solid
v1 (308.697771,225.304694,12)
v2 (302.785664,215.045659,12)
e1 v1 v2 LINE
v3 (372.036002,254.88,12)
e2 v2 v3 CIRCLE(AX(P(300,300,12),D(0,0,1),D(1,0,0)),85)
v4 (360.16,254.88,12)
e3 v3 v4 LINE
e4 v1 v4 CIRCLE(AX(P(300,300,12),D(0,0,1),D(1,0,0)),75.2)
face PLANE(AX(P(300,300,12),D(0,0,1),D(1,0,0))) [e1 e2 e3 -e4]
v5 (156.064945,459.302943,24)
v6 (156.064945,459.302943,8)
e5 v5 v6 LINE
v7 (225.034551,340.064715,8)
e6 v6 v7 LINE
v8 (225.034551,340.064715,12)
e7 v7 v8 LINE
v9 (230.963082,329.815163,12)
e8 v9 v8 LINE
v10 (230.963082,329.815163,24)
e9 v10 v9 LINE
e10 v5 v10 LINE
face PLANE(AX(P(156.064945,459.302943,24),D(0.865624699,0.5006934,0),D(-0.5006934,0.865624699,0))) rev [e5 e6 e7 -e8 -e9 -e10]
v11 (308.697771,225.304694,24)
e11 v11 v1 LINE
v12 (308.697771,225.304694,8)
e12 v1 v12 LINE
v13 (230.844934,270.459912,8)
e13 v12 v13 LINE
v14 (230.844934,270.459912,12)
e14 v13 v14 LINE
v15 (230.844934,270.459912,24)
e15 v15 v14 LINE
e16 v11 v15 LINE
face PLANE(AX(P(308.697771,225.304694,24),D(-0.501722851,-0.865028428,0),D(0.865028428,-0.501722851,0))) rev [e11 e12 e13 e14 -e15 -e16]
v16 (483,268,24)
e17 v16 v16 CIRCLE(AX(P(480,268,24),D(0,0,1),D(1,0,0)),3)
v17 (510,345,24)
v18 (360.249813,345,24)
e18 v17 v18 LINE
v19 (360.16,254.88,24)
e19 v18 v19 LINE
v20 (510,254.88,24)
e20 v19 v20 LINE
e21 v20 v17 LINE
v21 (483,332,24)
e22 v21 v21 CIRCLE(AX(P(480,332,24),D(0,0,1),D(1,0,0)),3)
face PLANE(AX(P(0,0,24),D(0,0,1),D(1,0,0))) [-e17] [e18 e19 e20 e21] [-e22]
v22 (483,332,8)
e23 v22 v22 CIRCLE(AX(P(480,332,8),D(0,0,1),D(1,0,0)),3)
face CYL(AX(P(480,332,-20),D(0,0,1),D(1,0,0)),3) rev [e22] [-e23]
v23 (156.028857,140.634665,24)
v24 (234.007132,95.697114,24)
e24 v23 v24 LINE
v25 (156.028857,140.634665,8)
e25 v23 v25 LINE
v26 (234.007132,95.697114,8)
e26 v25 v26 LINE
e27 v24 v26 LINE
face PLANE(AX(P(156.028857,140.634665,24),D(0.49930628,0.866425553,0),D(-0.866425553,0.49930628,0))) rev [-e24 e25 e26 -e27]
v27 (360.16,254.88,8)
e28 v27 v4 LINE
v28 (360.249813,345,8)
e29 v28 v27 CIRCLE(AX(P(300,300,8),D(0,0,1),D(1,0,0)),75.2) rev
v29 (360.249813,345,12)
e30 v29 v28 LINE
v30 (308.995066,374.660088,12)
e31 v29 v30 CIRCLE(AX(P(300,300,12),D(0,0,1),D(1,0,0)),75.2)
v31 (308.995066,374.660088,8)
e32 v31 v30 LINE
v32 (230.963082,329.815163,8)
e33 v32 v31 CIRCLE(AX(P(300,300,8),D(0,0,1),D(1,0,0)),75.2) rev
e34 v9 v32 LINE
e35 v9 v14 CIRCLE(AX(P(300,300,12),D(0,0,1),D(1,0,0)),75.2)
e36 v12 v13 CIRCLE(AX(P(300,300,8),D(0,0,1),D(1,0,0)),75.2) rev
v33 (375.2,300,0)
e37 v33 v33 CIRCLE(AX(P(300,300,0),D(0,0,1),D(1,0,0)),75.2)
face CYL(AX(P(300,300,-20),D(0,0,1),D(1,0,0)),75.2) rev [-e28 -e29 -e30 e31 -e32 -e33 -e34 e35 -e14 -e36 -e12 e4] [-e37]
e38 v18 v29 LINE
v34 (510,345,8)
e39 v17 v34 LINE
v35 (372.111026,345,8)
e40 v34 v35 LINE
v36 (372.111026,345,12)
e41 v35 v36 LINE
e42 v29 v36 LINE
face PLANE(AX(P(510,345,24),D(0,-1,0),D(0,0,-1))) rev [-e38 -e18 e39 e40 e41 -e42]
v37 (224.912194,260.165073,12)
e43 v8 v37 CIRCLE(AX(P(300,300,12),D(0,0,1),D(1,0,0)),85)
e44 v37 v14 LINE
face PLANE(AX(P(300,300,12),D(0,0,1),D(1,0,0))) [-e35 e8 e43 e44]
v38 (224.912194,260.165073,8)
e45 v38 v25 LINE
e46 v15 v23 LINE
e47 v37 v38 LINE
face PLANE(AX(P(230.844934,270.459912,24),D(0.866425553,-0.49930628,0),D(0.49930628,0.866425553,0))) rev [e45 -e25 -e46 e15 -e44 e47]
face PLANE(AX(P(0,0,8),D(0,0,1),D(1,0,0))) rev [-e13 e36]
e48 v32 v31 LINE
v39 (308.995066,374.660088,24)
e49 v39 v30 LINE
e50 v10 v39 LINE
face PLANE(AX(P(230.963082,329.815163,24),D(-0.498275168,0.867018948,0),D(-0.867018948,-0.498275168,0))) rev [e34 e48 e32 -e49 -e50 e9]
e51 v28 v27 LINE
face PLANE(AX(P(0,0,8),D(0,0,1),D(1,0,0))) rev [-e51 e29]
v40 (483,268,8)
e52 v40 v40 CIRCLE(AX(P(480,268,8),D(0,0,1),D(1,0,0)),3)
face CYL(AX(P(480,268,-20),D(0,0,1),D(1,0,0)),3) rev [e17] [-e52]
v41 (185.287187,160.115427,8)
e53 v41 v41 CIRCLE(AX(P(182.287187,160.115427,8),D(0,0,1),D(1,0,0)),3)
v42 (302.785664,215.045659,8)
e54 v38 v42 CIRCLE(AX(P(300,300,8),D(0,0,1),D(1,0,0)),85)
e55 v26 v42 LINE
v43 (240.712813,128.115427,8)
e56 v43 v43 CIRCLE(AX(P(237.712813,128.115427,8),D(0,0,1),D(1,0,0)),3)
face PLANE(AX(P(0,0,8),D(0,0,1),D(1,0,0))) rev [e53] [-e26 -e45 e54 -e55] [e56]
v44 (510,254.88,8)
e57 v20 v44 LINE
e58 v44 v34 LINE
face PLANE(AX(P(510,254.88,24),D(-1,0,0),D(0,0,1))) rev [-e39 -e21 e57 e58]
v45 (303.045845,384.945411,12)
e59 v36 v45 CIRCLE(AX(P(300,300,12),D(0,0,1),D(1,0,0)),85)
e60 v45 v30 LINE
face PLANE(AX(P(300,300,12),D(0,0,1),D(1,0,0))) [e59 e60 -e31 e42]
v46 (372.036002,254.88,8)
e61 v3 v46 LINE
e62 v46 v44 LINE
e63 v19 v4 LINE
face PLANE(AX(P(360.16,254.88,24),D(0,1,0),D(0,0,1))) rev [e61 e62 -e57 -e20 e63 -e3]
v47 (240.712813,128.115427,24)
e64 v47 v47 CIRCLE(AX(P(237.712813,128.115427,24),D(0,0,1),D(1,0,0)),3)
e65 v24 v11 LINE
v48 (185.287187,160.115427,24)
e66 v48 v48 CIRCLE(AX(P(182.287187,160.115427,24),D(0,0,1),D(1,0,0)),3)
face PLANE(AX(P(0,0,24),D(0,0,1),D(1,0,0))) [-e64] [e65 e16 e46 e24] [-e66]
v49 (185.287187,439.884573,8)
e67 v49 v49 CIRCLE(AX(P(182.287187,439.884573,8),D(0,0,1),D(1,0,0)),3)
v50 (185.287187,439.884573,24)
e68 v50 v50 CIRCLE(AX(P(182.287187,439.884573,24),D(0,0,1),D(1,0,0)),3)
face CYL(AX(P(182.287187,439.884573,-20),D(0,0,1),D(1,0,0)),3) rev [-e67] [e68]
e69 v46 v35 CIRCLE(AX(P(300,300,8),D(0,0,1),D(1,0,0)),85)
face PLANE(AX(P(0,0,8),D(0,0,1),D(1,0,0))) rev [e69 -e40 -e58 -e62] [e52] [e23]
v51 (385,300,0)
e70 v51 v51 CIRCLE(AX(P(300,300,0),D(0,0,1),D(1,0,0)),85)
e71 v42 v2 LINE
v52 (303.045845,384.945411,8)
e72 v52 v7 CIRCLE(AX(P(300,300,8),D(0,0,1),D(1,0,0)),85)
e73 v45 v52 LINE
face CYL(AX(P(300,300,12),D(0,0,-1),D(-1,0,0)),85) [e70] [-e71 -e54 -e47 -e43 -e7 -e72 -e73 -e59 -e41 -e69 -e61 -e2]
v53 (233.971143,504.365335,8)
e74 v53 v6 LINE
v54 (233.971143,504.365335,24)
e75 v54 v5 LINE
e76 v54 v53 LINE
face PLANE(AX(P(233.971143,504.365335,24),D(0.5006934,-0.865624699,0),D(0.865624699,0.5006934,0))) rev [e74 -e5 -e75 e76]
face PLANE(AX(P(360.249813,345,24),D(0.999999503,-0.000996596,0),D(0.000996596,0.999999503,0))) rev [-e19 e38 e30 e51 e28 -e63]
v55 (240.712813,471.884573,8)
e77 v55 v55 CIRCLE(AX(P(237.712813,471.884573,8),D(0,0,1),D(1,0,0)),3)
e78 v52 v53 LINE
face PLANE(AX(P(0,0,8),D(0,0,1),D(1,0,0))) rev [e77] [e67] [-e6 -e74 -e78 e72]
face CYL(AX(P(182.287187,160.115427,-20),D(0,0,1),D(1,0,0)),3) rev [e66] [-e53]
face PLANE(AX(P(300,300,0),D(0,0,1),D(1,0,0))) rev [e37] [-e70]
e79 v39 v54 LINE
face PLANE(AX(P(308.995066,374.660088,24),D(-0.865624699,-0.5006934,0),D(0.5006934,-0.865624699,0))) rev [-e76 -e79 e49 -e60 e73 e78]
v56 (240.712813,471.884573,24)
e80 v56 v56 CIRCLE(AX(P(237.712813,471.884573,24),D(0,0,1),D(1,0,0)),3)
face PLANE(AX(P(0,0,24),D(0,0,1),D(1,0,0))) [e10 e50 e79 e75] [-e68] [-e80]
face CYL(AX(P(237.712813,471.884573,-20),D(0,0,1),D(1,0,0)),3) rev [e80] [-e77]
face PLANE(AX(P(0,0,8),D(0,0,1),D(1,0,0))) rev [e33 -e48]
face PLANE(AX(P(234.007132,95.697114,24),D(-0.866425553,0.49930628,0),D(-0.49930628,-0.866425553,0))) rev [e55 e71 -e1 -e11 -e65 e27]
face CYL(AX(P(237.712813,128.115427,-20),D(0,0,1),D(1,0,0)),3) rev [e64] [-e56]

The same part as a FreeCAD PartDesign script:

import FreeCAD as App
import Part
import Sketcher

doc = App.newDocument("Part")
body = doc.addObject("PartDesign::Body", "Body")

sketch1 = body.newObject("Sketcher::SketchObject", "Sketch")
sketch1.AttachmentSupport = (doc.getObject("XY_Plane"), [""])
sketch1.MapMode = "FlatFace"
sketch1.addGeometry(Part.Circle(App.Vector(300, 300, 0), App.Vector(0, 0, 1), 85), False)
sketch1.addConstraint(Sketcher.Constraint("Diameter", 0, 170.0))
sketch1.addConstraint(Sketcher.Constraint("DistanceX", -1, 1, 0, 3, 300.0))
sketch1.addConstraint(Sketcher.Constraint("DistanceY", -1, 1, 0, 3, 300.0))
pad1 = body.newObject("PartDesign::Pad", "Pad")
pad1.Profile = sketch1
pad1.Length = 12

sketch2 = body.newObject("Sketcher::SketchObject", "Sketch001")
sketch2.AttachmentSupport = (doc.getObject("XY_Plane"), [""])
sketch2.MapMode = "FlatFace"
sketch2.AttachmentOffset = App.Placement(App.Vector(0, 0, 12), App.Rotation())
sketch2.addGeometry(Part.Circle(App.Vector(300, 300, 0), App.Vector(0, 0, 1), 75.2), False)
sketch2.addConstraint(Sketcher.Constraint("Diameter", 0, 150.4))
sketch2.addConstraint(Sketcher.Constraint("DistanceX", -1, 1, 0, 3, 300.0))
sketch2.addConstraint(Sketcher.Constraint("DistanceY", -1, 1, 0, 3, 300.0))
pocket1 = body.newObject("PartDesign::Pocket", "Pocket")
pocket1.Profile = sketch2
pocket1.Length = 32

sketch3 = body.newObject("Sketcher::SketchObject", "Sketch002")
sketch3.AttachmentSupport = (doc.getObject("XY_Plane"), [""])
sketch3.MapMode = "FlatFace"
sketch3.AttachmentOffset = App.Placement(App.Vector(0, 0, 8), App.Rotation())
sketch3.addGeometry(Part.LineSegment(App.Vector(360.16, 254.88, 0), App.Vector(510, 254.88, 0)), False)
sketch3.addGeometry(Part.LineSegment(App.Vector(510, 254.88, 0), App.Vector(510, 345, 0)), False)
sketch3.addGeometry(Part.LineSegment(App.Vector(510, 345, 0), App.Vector(360.249813, 345, 0)), False)
sketch3.addGeometry(Part.LineSegment(App.Vector(360.249813, 345, 0), App.Vector(360.16, 254.88, 0)), False)
sketch3.addConstraint(Sketcher.Constraint("Coincident", 0, 2, 1, 1))
sketch3.addConstraint(Sketcher.Constraint("Coincident", 1, 2, 2, 1))
sketch3.addConstraint(Sketcher.Constraint("Coincident", 2, 2, 3, 1))
sketch3.addConstraint(Sketcher.Constraint("Coincident", 3, 2, 0, 1))
sketch3.addConstraint(Sketcher.Constraint("Horizontal", 0))
sketch3.addConstraint(Sketcher.Constraint("Vertical", 1))
sketch3.addConstraint(Sketcher.Constraint("Horizontal", 2))
sketch3.addConstraint(Sketcher.Constraint("DistanceX", -1, 1, 0, 2, 510.0))
sketch3.addConstraint(Sketcher.Constraint("DistanceY", -1, 1, 1, 2, 345.0))
sketch3.addConstraint(Sketcher.Constraint("DistanceX", 0, 1, 0, 2, 149.84))
sketch3.addConstraint(Sketcher.Constraint("DistanceY", 1, 1, 1, 2, 90.12))
sketch3.addConstraint(Sketcher.Constraint("DistanceX", 2, 2, 2, 1, 149.750187))
pad2 = body.newObject("PartDesign::Pad", "Pad001")
pad2.Profile = sketch3
pad2.Length = 16

sketch4 = body.newObject("Sketcher::SketchObject", "Sketch003")
sketch4.AttachmentSupport = (doc.getObject("XY_Plane"), [""])
sketch4.MapMode = "FlatFace"
sketch4.AttachmentOffset = App.Placement(App.Vector(0, 0, 24), App.Rotation())
sketch4.addGeometry(Part.Circle(App.Vector(480, 268, 0), App.Vector(0, 0, 1), 3), False)
sketch4.addConstraint(Sketcher.Constraint("Diameter", 0, 6.0))
sketch4.addConstraint(Sketcher.Constraint("DistanceX", -1, 1, 0, 3, 480.0))
sketch4.addConstraint(Sketcher.Constraint("DistanceY", -1, 1, 0, 3, 268.0))
pocket2 = body.newObject("PartDesign::Pocket", "Pocket001")
pocket2.Profile = sketch4
pocket2.Length = 44

sketch5 = body.newObject("Sketcher::SketchObject", "Sketch004")
sketch5.AttachmentSupport = (doc.getObject("XY_Plane"), [""])
sketch5.MapMode = "FlatFace"
sketch5.AttachmentOffset = App.Placement(App.Vector(0, 0, 24), App.Rotation())
sketch5.addGeometry(Part.Circle(App.Vector(480, 332, 0), App.Vector(0, 0, 1), 3), False)
sketch5.addConstraint(Sketcher.Constraint("Diameter", 0, 6.0))
sketch5.addConstraint(Sketcher.Constraint("DistanceX", -1, 1, 0, 3, 480.0))
sketch5.addConstraint(Sketcher.Constraint("DistanceY", -1, 1, 0, 3, 332.0))
pocket3 = body.newObject("PartDesign::Pocket", "Pocket002")
pocket3.Profile = sketch5
pocket3.Length = 44

sketch6 = body.newObject("Sketcher::SketchObject", "Sketch005")
sketch6.AttachmentSupport = (doc.getObject("XY_Plane"), [""])
sketch6.MapMode = "FlatFace"
sketch6.AttachmentOffset = App.Placement(App.Vector(0, 0, 8), App.Rotation())
sketch6.addGeometry(Part.LineSegment(App.Vector(308.995066, 374.660088, 0), App.Vector(233.971143, 504.365335, 0)), False)
sketch6.addGeometry(Part.LineSegment(App.Vector(233.971143, 504.365335, 0), App.Vector(156.064945, 459.302943, 0)), False)
sketch6.addGeometry(Part.LineSegment(App.Vector(156.064945, 459.302943, 0), App.Vector(230.963082, 329.815163, 0)), False)
sketch6.addGeometry(Part.LineSegment(App.Vector(230.963082, 329.815163, 0), App.Vector(308.995066, 374.660088, 0)), False)
sketch6.addConstraint(Sketcher.Constraint("Coincident", 0, 2, 1, 1))
sketch6.addConstraint(Sketcher.Constraint("Coincident", 1, 2, 2, 1))
sketch6.addConstraint(Sketcher.Constraint("Coincident", 2, 2, 3, 1))
sketch6.addConstraint(Sketcher.Constraint("Coincident", 3, 2, 0, 1))
sketch6.addConstraint(Sketcher.Constraint("Perpendicular", 0, 1))
sketch6.addConstraint(Sketcher.Constraint("Perpendicular", 1, 2))
sketch6.addConstraint(Sketcher.Constraint("Distance", 0, 149.840048))
sketch6.addConstraint(Sketcher.Constraint("Distance", 1, 89.999971))
sketch6.addConstraint(Sketcher.Constraint("DistanceX", -1, 1, 2, 2, 230.963082))
sketch6.addConstraint(Sketcher.Constraint("DistanceY", -1, 1, 3, 2, 374.660088))
sketch6.addConstraint(Sketcher.Constraint("DistanceY", 1, 2, 0, 2, 45.062392))
sketch6.addConstraint(Sketcher.Constraint("DistanceY", 2, 2, 1, 2, 129.48778))
pad3 = body.newObject("PartDesign::Pad", "Pad002")
pad3.Profile = sketch6
pad3.Length = 16

sketch7 = body.newObject("Sketcher::SketchObject", "Sketch006")
sketch7.AttachmentSupport = (doc.getObject("XY_Plane"), [""])
sketch7.MapMode = "FlatFace"
sketch7.AttachmentOffset = App.Placement(App.Vector(0, 0, 24), App.Rotation())
sketch7.addGeometry(Part.Circle(App.Vector(237.712813, 471.884573, 0), App.Vector(0, 0, 1), 3), False)
sketch7.addConstraint(Sketcher.Constraint("Diameter", 0, 6.0))
sketch7.addConstraint(Sketcher.Constraint("DistanceX", -1, 1, 0, 3, 237.712813))
sketch7.addConstraint(Sketcher.Constraint("DistanceY", -1, 1, 0, 3, 471.884573))
pocket4 = body.newObject("PartDesign::Pocket", "Pocket003")
pocket4.Profile = sketch7
pocket4.Length = 44

sketch8 = body.newObject("Sketcher::SketchObject", "Sketch007")
sketch8.AttachmentSupport = (doc.getObject("XY_Plane"), [""])
sketch8.MapMode = "FlatFace"
sketch8.AttachmentOffset = App.Placement(App.Vector(0, 0, 24), App.Rotation())
sketch8.addGeometry(Part.Circle(App.Vector(182.287187, 439.884573, 0), App.Vector(0, 0, 1), 3), False)
sketch8.addConstraint(Sketcher.Constraint("Diameter", 0, 6.0))
sketch8.addConstraint(Sketcher.Constraint("DistanceX", -1, 1, 0, 3, 182.287187))
sketch8.addConstraint(Sketcher.Constraint("DistanceY", -1, 1, 0, 3, 439.884573))
pocket5 = body.newObject("PartDesign::Pocket", "Pocket004")
pocket5.Profile = sketch8
pocket5.Length = 44

sketch9 = body.newObject("Sketcher::SketchObject", "Sketch008")
sketch9.AttachmentSupport = (doc.getObject("XY_Plane"), [""])
sketch9.MapMode = "FlatFace"
sketch9.AttachmentOffset = App.Placement(App.Vector(0, 0, 8), App.Rotation())
sketch9.addGeometry(Part.LineSegment(App.Vector(230.844934, 270.459912, 0), App.Vector(156.028857, 140.634665, 0)), False)
sketch9.addGeometry(Part.LineSegment(App.Vector(156.028857, 140.634665, 0), App.Vector(234.007132, 95.697114, 0)), False)
sketch9.addGeometry(Part.LineSegment(App.Vector(234.007132, 95.697114, 0), App.Vector(308.697771, 225.304694, 0)), False)
sketch9.addGeometry(Part.LineSegment(App.Vector(308.697771, 225.304694, 0), App.Vector(230.844934, 270.459912, 0)), False)
sketch9.addConstraint(Sketcher.Constraint("Coincident", 0, 2, 1, 1))
sketch9.addConstraint(Sketcher.Constraint("Coincident", 1, 2, 2, 1))
sketch9.addConstraint(Sketcher.Constraint("Coincident", 2, 2, 3, 1))
sketch9.addConstraint(Sketcher.Constraint("Coincident", 3, 2, 0, 1))
sketch9.addConstraint(Sketcher.Constraint("Perpendicular", 0, 1))
sketch9.addConstraint(Sketcher.Constraint("Perpendicular", 1, 2))
sketch9.addConstraint(Sketcher.Constraint("Distance", 0, 149.840048))
sketch9.addConstraint(Sketcher.Constraint("Distance", 1, 89.999971))
sketch9.addConstraint(Sketcher.Constraint("DistanceX", -1, 1, 1, 2, 234.007132))
sketch9.addConstraint(Sketcher.Constraint("DistanceX", -1, 1, 2, 2, 308.697771))
sketch9.addConstraint(Sketcher.Constraint("DistanceY", -1, 1, 3, 2, 270.459912))
sketch9.addConstraint(Sketcher.Constraint("DistanceY", 1, 2, 0, 2, 44.937551))
pad4 = body.newObject("PartDesign::Pad", "Pad003")
pad4.Profile = sketch9
pad4.Length = 16

sketch10 = body.newObject("Sketcher::SketchObject", "Sketch009")
sketch10.AttachmentSupport = (doc.getObject("XY_Plane"), [""])
sketch10.MapMode = "FlatFace"
sketch10.AttachmentOffset = App.Placement(App.Vector(0, 0, 24), App.Rotation())
sketch10.addGeometry(Part.Circle(App.Vector(182.287187, 160.115427, 0), App.Vector(0, 0, 1), 3), False)
sketch10.addConstraint(Sketcher.Constraint("Diameter", 0, 6.0))
sketch10.addConstraint(Sketcher.Constraint("DistanceX", -1, 1, 0, 3, 182.287187))
sketch10.addConstraint(Sketcher.Constraint("DistanceY", -1, 1, 0, 3, 160.115427))
pocket6 = body.newObject("PartDesign::Pocket", "Pocket005")
pocket6.Profile = sketch10
pocket6.Length = 44

sketch11 = body.newObject("Sketcher::SketchObject", "Sketch010")
sketch11.AttachmentSupport = (doc.getObject("XY_Plane"), [""])
sketch11.MapMode = "FlatFace"
sketch11.AttachmentOffset = App.Placement(App.Vector(0, 0, 24), App.Rotation())
sketch11.addGeometry(Part.Circle(App.Vector(237.712813, 128.115427, 0), App.Vector(0, 0, 1), 3), False)
sketch11.addConstraint(Sketcher.Constraint("Diameter", 0, 6.0))
sketch11.addConstraint(Sketcher.Constraint("DistanceX", -1, 1, 0, 3, 237.712813))
sketch11.addConstraint(Sketcher.Constraint("DistanceY", -1, 1, 0, 3, 128.115427))
pocket7 = body.newObject("PartDesign::Pocket", "Pocket006")
pocket7.Profile = sketch11
pocket7.Length = 44

doc.recompute()
